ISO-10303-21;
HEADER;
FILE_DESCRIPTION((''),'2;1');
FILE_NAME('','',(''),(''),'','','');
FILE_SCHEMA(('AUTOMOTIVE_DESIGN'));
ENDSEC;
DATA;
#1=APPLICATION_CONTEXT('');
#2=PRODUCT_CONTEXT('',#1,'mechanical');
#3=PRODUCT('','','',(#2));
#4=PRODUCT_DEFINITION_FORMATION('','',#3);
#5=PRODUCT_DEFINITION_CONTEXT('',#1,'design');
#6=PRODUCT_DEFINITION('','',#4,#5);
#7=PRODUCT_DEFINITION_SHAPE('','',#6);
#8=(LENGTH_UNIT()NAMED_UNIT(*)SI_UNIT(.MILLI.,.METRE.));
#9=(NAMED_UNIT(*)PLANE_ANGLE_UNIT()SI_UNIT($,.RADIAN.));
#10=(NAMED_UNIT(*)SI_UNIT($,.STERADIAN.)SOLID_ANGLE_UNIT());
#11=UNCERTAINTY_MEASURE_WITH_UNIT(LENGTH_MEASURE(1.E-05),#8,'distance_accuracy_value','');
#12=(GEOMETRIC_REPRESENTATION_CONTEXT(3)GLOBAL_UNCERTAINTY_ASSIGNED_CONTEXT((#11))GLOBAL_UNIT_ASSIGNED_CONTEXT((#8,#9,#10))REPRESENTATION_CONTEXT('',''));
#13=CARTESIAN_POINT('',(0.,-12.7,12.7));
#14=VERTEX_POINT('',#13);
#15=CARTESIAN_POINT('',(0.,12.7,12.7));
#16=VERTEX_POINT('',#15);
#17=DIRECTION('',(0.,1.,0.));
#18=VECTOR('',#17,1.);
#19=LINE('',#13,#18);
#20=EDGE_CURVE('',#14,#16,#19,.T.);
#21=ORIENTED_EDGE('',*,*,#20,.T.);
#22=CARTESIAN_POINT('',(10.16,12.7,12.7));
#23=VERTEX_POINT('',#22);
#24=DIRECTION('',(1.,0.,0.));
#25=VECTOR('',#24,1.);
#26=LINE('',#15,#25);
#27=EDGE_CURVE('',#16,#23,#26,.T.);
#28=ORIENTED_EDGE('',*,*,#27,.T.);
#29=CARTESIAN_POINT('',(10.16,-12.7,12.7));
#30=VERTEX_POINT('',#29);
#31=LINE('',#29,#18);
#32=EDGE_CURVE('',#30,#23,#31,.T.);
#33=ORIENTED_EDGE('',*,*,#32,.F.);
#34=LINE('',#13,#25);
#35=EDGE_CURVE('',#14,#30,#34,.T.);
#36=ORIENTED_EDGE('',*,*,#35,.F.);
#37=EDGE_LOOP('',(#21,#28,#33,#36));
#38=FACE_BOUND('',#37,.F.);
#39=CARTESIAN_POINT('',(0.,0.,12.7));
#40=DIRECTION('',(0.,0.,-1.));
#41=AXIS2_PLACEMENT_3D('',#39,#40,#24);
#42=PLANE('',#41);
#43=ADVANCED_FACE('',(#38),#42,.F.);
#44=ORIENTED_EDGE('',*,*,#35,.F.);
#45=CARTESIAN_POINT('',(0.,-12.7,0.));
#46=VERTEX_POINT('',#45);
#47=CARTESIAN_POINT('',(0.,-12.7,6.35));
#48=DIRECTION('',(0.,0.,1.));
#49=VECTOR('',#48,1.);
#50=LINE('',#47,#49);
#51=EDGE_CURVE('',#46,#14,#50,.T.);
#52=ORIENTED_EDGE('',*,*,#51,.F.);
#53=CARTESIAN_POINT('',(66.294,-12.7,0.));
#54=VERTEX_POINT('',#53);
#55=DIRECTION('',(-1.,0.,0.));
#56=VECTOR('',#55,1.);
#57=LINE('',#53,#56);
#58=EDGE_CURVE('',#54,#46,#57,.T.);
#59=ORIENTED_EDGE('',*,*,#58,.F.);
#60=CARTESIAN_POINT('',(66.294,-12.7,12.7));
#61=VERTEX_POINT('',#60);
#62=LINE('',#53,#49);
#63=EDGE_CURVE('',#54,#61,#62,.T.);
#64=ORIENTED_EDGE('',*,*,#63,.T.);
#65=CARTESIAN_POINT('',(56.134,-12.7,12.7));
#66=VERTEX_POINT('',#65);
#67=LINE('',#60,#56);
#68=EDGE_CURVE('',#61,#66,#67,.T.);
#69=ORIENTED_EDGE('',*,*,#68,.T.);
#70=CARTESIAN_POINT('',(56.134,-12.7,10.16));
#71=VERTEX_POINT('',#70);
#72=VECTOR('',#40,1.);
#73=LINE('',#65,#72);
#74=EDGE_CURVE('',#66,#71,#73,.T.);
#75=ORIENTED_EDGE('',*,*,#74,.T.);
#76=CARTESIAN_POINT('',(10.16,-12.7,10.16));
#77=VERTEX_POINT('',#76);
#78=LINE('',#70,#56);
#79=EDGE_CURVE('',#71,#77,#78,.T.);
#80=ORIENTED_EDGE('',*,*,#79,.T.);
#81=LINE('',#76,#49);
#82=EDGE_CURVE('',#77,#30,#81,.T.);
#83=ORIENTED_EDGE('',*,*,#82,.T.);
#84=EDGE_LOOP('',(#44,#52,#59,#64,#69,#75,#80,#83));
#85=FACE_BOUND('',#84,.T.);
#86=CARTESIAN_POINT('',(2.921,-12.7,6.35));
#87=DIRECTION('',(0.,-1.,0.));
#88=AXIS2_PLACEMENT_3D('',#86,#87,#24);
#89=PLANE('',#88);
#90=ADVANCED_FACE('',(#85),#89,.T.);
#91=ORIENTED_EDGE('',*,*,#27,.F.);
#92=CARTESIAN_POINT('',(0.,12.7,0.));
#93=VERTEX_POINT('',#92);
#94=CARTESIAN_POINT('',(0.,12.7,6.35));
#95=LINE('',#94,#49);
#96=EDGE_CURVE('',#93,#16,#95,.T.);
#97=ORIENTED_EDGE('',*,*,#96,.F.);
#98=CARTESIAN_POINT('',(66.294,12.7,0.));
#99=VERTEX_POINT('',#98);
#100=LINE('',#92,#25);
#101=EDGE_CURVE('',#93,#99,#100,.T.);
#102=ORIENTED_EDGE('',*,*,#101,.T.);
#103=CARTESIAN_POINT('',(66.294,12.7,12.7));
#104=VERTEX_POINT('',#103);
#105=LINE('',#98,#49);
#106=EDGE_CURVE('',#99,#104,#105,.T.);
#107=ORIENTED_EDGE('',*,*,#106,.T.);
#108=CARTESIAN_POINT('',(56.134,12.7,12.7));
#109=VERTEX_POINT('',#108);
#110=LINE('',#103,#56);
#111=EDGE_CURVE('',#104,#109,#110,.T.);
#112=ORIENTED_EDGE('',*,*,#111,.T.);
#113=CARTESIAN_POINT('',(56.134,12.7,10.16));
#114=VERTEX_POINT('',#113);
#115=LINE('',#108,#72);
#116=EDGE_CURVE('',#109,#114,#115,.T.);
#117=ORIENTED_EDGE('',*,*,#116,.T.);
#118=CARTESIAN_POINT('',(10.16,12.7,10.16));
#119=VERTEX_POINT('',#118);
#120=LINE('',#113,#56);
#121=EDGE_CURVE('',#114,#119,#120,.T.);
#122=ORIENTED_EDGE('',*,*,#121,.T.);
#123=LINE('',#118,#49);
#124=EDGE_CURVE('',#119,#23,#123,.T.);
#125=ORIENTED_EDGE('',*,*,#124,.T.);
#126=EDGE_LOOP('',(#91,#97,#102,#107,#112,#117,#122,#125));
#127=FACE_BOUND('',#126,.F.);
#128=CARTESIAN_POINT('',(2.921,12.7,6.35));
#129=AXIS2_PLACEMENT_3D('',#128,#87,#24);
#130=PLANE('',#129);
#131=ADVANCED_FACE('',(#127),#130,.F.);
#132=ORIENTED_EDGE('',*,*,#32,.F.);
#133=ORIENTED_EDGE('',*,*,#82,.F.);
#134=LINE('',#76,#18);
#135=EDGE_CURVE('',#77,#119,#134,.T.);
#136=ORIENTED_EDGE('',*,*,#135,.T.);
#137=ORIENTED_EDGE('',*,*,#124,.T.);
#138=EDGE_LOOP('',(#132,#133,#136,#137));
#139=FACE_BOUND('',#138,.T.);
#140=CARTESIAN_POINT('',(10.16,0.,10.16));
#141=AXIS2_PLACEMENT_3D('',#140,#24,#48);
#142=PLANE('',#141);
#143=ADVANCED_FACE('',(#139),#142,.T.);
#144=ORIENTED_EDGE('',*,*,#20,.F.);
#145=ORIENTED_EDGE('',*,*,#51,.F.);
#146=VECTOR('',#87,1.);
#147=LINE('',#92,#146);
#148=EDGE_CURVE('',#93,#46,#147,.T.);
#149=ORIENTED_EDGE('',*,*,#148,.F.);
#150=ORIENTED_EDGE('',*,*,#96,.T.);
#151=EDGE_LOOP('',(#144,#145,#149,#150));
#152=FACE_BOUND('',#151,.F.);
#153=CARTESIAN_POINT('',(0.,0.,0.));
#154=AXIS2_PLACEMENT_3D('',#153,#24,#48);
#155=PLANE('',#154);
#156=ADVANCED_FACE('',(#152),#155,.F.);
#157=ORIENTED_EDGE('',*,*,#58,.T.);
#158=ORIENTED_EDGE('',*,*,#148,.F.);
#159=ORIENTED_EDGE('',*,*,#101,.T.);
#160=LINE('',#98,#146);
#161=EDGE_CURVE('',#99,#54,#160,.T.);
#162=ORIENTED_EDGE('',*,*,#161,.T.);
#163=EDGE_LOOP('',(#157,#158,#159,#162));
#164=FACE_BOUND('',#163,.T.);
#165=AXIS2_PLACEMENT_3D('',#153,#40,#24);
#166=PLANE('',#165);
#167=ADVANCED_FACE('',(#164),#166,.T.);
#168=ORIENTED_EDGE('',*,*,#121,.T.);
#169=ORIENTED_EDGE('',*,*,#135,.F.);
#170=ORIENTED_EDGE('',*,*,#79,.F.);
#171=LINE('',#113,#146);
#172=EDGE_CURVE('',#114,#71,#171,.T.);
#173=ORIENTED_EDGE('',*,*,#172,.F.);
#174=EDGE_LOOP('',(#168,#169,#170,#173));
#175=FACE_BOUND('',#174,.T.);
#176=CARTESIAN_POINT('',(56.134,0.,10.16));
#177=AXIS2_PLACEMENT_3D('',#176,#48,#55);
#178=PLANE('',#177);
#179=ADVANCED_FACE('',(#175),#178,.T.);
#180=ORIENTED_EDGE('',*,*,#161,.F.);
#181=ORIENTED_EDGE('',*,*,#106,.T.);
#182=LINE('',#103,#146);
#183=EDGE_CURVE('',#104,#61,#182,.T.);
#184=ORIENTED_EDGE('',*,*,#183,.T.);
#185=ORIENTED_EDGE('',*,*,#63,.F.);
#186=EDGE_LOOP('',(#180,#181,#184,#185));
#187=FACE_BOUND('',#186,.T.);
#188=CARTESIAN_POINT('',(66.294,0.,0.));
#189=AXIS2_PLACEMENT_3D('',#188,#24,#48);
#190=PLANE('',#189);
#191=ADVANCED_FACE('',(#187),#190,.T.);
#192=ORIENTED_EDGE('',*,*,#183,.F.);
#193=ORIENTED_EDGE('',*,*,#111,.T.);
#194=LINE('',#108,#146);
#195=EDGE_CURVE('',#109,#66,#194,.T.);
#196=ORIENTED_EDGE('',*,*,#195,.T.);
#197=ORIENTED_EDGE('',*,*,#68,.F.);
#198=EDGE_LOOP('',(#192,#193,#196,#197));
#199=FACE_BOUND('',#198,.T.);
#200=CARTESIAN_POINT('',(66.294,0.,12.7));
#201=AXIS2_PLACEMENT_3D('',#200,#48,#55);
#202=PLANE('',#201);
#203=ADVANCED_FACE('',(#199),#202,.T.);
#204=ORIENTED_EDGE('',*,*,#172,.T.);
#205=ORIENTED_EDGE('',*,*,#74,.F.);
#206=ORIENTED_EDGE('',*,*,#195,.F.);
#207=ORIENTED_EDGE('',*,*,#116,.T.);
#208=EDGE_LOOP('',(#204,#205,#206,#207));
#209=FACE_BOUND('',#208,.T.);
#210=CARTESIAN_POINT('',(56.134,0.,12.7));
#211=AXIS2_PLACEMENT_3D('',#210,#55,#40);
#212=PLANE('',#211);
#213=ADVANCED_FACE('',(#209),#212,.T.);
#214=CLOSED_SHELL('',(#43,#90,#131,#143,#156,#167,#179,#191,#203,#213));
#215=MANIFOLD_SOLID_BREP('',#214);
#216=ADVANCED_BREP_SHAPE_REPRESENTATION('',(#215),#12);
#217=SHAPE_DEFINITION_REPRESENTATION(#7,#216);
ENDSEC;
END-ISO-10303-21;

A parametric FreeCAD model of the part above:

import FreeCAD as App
import Part
import Sketcher
from FreeCAD import Vector
Q = App.Units.Quantity


def add_polygon(sketch, points):
    """Adds a closed chain of lines whose ends are joined by coincident constraints."""
    first, n = sketch.GeometryCount, len(points)
    for a, b in zip(points, points[1:] + points[:1]):
        sketch.addGeometry(Part.LineSegment(App.Vector(*a, 0), App.Vector(*b, 0)), False)
    for i in range(n):
        sketch.addConstraint(Sketcher.Constraint("Coincident", first + i, 2, first + (i + 1) % n, 1))

doc = App.newDocument("Part")
body = doc.addObject("PartDesign::Body", "Body")

# Sketch on XZ plane
sketch1 = body.newObject("Sketcher::SketchObject", "Sketch")
sketch1.AttachmentSupport = (doc.getObject("XZ_Plane"), [""])
sketch1.MapMode = "FlatFace"
add_polygon(sketch1, [(5.842, 12.7), (5.842, 0), (66.294, 0), (66.294, 12.7), (56.134, 12.7), (56.134, 10.16), (10.16, 10.16), (10.16, 12.7)])  # lines 0-7
sketch1.addConstraint([
    Sketcher.Constraint("Vertical", 0),
    Sketcher.Constraint("Horizontal", 1),
    Sketcher.Constraint("Vertical", 2),
    Sketcher.Constraint("Horizontal", 3),
    Sketcher.Constraint("Vertical", 4),
    Sketcher.Constraint("Horizontal", 5),
    Sketcher.Constraint("Vertical", 6),
    Sketcher.Constraint("Horizontal", 7),
    Sketcher.Constraint("PointOnObject", 0, 2, -1),
    Sketcher.Constraint("Horizontal", 3, 2, 6, 2),
    Sketcher.Constraint("DistanceX", 3, 2, 3, 1, Q("0.4 in")),
    Sketcher.Constraint("DistanceY", 0, 2, 0, 1, Q("0.5 in")),
    Sketcher.Constraint("DistanceY", 4, 2, 4, 1, Q("0.1 in")),
    Sketcher.Constraint("DistanceX", 1, 1, 1, 2, Q("2.38 in")),
    Sketcher.Constraint("DistanceX", 5, 2, 5, 1, Q("1.81 in")),
    Sketcher.Constraint("DistanceX", -1, 1, 5, 2, Q("0.4 in")),
])
pad1 = body.newObject("PartDesign::Pad", "Pad")
pad1.Profile = sketch1
pad1.Length = Q("1 in")
pad1.Midplane = True

# Sketch on XZ plane
sketch2 = body.newObject("Sketcher::SketchObject", "Sketch001")
sketch2.AttachmentSupport = (doc.getObject("XZ_Plane"), [""])
sketch2.MapMode = "FlatFace"
add_polygon(sketch2, [(0, 12.7), (0, 0), (5.842, 0), (5.842, 12.7)])  # lines 0-3
sketch2.addConstraint([
    Sketcher.Constraint("Vertical", 0),
    Sketcher.Constraint("Horizontal", 1),
    Sketcher.Constraint("Vertical", 2),
    Sketcher.Constraint("Horizontal", 3),
    Sketcher.Constraint("Coincident", 0, 2, -1, 1),
    Sketcher.Constraint("DistanceY", 0, 2, 0, 1, Q("0.5 in")),
    Sketcher.Constraint("DistanceX", 1, 1, 1, 2, Q("0.23 in")),
])
pad2 = body.newObject("PartDesign::Pad", "Pad001")
pad2.Profile = sketch2
pad2.Length = Q("1 in")
pad2.Midplane = True

doc.recompute()
